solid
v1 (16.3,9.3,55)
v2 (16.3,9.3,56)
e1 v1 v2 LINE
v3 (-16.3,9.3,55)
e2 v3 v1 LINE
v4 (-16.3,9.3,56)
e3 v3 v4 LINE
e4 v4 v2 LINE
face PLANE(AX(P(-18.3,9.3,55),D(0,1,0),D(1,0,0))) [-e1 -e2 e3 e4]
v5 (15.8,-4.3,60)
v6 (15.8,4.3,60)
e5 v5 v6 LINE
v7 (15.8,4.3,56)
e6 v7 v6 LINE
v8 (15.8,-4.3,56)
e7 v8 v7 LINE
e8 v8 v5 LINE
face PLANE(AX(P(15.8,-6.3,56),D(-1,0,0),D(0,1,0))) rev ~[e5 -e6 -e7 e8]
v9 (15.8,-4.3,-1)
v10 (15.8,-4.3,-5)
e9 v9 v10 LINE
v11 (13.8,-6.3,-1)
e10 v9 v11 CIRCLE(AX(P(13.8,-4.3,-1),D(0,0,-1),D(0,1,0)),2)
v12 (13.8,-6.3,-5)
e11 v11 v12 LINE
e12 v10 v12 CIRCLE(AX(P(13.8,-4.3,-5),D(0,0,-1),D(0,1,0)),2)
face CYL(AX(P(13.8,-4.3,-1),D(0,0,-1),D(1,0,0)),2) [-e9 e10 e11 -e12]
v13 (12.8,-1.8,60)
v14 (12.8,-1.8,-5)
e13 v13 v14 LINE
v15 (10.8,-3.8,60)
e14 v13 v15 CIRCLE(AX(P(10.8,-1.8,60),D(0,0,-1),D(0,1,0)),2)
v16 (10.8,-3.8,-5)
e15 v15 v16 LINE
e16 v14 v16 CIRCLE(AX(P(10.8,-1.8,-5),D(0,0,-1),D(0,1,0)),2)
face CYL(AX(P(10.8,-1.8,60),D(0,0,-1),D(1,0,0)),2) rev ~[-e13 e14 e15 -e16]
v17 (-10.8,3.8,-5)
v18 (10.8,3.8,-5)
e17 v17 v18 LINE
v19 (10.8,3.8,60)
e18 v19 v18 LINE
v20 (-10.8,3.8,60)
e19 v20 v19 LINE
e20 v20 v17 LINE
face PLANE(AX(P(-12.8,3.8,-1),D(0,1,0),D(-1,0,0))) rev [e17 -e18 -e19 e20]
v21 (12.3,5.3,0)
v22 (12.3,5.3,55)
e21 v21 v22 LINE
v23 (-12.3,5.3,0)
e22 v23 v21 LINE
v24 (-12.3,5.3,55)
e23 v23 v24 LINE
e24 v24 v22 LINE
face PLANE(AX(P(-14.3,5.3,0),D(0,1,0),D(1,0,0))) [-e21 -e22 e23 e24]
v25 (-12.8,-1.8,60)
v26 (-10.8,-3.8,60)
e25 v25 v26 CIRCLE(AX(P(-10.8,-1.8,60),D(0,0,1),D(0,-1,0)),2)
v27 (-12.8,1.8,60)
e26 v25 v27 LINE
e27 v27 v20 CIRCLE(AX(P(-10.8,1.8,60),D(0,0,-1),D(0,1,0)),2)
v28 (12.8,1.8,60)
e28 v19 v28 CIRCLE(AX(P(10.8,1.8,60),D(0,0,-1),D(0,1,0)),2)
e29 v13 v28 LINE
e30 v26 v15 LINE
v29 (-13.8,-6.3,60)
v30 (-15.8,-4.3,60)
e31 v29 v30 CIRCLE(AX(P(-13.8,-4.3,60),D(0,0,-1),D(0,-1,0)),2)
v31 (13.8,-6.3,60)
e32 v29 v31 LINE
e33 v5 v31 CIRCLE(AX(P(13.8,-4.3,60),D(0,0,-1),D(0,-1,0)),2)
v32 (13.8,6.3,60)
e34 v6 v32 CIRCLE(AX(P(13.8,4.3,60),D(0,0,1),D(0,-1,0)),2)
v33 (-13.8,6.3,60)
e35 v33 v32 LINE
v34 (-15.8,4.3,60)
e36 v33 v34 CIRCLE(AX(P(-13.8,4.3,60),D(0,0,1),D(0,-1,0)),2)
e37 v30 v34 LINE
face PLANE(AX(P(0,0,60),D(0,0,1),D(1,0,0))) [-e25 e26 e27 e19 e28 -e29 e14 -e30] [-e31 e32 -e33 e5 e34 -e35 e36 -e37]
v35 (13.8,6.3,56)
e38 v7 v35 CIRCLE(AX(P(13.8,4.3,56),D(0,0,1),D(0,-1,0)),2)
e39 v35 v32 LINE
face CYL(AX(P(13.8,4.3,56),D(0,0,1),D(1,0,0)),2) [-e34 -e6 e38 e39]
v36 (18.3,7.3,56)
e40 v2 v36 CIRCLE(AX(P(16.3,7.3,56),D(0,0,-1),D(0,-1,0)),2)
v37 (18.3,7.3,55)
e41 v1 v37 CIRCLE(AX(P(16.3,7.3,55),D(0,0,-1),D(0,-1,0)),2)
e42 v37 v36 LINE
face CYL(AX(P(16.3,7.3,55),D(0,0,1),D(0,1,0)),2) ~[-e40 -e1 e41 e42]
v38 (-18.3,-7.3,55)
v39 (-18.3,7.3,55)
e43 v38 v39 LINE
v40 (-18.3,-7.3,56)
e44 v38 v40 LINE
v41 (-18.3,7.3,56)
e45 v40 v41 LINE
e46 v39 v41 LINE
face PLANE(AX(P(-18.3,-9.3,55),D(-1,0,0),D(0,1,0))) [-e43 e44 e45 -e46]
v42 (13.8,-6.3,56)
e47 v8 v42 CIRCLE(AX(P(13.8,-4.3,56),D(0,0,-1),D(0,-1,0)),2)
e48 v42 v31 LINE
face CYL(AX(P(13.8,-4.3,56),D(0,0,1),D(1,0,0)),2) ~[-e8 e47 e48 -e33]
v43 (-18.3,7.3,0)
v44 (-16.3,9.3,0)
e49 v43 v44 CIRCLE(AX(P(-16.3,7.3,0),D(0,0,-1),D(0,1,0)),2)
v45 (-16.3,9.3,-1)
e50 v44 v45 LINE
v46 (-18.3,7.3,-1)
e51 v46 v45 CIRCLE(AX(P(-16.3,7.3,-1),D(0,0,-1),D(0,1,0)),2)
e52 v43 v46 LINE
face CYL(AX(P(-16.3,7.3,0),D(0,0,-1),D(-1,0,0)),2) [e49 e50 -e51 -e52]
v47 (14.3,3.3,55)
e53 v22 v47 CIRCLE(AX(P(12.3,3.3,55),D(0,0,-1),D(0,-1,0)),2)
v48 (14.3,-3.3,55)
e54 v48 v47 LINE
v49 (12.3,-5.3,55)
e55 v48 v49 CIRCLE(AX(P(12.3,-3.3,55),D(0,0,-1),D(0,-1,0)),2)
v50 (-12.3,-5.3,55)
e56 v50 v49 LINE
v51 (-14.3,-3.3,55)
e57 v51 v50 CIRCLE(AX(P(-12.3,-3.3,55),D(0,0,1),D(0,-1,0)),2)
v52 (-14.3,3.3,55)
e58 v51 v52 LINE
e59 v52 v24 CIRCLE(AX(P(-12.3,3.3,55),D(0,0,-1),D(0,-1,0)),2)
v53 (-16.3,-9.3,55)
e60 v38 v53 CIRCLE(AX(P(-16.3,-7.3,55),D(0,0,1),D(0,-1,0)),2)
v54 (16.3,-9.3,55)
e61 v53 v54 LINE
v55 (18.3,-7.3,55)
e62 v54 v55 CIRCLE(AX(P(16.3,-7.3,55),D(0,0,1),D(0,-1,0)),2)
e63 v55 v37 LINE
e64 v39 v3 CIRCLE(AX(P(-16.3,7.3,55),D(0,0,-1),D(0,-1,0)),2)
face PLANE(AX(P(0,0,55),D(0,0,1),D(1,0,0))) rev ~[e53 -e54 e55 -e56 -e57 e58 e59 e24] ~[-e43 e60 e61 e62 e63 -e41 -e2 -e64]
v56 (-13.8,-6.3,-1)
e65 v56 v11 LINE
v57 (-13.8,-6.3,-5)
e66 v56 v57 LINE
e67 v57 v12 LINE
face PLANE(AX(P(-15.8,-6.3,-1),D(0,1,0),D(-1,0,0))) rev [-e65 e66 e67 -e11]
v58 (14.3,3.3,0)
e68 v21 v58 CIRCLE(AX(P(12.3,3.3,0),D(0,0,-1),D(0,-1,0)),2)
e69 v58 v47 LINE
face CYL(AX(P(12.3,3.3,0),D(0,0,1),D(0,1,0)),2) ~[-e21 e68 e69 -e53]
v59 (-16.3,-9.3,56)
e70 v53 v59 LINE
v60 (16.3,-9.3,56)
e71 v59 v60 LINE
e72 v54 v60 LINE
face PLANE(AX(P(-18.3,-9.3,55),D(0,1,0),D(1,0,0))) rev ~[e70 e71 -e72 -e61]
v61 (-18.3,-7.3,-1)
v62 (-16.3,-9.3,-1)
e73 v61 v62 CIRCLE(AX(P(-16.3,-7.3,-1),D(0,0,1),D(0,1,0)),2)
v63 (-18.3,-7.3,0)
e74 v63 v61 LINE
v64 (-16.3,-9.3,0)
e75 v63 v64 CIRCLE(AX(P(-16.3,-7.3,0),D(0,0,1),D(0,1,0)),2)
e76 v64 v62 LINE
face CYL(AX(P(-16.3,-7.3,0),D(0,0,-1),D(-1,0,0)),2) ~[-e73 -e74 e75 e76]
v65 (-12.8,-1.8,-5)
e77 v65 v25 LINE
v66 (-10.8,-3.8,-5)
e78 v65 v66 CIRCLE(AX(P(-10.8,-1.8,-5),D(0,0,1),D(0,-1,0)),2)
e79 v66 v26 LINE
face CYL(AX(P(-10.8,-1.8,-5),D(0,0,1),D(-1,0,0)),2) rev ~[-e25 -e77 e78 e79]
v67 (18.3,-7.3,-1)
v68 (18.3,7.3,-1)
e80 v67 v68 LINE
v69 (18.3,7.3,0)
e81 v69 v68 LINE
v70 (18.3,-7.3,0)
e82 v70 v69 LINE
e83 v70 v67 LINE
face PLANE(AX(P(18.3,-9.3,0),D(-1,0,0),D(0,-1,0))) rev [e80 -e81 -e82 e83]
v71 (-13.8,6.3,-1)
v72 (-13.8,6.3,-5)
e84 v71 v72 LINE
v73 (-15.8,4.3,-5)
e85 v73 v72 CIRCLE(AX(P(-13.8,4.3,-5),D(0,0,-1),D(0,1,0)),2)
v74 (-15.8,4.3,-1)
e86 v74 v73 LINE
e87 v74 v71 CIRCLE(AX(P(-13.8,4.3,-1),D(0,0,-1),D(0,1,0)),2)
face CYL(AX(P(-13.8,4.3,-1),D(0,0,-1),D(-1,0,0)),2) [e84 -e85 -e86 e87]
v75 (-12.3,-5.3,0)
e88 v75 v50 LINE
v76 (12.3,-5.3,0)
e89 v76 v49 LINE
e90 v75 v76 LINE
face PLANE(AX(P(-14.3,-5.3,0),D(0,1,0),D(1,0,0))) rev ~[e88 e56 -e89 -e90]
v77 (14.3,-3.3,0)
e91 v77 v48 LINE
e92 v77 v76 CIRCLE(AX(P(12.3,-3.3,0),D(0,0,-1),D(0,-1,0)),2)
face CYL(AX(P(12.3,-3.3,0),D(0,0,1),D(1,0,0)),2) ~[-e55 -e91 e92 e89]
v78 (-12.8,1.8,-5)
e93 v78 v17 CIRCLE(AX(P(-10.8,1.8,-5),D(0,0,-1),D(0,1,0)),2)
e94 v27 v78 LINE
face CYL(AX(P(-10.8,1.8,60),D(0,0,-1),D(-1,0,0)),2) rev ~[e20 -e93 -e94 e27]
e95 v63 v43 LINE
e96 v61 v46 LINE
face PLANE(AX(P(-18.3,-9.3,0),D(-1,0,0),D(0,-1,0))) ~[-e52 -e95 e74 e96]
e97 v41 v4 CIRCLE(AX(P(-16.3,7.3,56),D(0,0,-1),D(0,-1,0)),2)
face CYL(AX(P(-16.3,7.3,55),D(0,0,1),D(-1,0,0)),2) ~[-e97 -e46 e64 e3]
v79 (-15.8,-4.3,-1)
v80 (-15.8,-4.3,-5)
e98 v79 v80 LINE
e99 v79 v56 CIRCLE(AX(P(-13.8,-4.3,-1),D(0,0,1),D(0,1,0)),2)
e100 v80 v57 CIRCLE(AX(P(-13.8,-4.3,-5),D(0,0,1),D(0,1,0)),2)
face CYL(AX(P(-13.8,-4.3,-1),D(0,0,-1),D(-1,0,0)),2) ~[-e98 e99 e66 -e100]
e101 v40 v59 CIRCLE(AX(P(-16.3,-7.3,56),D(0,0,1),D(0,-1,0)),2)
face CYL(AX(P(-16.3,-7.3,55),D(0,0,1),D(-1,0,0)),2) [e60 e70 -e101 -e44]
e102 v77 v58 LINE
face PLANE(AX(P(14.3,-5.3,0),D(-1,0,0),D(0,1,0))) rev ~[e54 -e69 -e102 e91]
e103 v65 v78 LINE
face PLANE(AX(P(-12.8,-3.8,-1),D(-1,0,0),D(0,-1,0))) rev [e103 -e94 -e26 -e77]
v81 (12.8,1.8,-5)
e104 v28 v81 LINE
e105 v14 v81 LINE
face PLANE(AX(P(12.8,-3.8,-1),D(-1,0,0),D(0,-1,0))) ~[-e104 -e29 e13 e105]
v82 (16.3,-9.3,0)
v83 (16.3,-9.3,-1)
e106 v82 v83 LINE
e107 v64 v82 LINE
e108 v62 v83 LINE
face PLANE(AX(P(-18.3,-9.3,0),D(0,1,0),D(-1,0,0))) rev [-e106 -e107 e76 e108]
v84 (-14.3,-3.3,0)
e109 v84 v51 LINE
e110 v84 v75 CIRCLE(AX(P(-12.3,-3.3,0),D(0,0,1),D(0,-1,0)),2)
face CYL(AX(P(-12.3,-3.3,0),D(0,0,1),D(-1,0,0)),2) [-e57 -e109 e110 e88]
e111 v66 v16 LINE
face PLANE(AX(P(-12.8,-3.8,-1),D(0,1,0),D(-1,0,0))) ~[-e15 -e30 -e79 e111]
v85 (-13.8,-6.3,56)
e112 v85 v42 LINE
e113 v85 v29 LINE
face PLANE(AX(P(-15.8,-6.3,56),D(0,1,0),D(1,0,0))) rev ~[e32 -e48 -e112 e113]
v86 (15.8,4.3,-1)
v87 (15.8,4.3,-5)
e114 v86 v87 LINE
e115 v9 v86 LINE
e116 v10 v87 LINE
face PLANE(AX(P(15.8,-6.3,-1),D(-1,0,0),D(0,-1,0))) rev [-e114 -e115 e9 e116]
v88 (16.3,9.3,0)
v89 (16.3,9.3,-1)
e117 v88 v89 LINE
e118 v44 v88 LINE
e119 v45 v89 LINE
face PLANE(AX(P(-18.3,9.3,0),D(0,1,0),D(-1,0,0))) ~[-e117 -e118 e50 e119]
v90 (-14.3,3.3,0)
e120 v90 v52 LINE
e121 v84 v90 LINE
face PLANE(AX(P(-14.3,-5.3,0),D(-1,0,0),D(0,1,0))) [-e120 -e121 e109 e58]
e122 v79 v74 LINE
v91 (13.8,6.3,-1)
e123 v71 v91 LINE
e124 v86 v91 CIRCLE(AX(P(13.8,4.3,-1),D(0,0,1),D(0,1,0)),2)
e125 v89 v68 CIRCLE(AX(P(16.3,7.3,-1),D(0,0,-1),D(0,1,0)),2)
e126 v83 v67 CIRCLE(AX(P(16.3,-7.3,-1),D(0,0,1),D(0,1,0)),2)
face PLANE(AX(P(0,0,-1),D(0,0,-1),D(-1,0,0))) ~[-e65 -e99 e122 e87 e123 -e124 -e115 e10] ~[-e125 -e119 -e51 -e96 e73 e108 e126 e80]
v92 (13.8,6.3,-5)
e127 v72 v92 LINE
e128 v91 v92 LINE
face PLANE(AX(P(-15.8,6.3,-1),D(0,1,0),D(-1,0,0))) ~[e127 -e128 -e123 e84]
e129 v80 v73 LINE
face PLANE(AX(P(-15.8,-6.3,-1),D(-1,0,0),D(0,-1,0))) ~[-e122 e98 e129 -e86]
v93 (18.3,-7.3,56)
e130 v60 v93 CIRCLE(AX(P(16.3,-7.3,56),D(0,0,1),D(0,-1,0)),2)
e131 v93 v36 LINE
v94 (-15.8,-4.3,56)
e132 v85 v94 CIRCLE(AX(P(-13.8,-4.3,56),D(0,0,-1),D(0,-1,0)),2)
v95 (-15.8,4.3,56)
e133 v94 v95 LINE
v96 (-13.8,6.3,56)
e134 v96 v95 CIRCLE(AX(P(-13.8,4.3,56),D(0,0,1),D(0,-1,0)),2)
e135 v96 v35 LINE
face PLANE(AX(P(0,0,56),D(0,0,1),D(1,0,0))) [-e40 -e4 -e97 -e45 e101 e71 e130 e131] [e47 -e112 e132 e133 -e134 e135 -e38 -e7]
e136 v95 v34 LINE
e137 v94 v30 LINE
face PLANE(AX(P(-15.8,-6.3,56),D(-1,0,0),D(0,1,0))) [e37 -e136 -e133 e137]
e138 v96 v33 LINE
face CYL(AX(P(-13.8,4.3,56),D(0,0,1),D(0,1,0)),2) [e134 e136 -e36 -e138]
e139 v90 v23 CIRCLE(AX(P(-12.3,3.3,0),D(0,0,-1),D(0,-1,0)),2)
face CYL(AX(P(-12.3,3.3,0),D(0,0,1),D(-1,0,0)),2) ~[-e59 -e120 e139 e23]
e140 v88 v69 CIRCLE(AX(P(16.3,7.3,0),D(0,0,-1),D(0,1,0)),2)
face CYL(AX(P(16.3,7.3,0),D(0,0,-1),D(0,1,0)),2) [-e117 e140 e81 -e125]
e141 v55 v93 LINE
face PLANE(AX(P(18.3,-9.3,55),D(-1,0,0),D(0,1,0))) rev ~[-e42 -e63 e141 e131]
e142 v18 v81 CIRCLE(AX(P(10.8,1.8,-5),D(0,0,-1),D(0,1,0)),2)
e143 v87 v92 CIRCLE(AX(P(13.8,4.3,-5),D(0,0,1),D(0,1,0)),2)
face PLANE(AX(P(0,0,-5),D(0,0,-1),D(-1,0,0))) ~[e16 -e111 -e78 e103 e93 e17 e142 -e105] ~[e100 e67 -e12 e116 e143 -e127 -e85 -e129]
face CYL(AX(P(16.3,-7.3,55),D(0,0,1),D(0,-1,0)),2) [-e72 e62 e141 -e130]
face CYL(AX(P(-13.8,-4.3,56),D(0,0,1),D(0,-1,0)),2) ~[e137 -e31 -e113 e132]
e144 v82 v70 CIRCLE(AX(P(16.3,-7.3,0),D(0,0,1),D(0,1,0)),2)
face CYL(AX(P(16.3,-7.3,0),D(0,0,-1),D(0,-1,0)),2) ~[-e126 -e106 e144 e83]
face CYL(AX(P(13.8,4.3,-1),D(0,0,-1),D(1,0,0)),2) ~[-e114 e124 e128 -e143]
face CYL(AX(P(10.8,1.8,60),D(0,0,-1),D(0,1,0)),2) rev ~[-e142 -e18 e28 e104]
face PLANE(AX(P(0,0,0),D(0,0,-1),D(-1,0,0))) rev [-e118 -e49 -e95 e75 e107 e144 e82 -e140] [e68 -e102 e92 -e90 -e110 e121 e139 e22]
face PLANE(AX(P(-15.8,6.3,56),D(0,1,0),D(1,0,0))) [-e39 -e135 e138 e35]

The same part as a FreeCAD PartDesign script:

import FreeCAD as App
import Part
import Sketcher
from FreeCAD import Vector
Q = App.Units.Quantity


def edges_at(feature, points):
    """Names of the edges that pass closest to the given points."""
    edges = feature.Shape.Edges
    near = lambda p: min(range(len(edges)), key=lambda i: edges[i].distToShape(Part.Vertex(*p))[0])
    return sorted({f"Edge{near(p) + 1}" for p in points})

doc = App.newDocument("Part")
body = doc.addObject("PartDesign::Body", "Body")

sketch1 = doc.addObject("Sketcher::SketchObject", "Sketch")
body.addObject(sketch1)
sketch1.AttachmentSupport = (doc.XY_Plane, [""])
sketch1.MapMode = "FlatFace"
sketch1.addGeometry([
    Part.LineSegment(Vector(-14, 5, 0), Vector(-14, -5, 0)),
    Part.LineSegment(Vector(-14, -5, 0), Vector(14, -5, 0)),
    Part.LineSegment(Vector(14, -5, 0), Vector(14, 5, 0)),
    Part.LineSegment(Vector(14, 5, 0), Vector(-14, 5, 0)),
    Part.LineSegment(Vector(13, -4, 0), Vector(-13, -4, 0)),
    Part.LineSegment(Vector(-13, -4, 0), Vector(-13, 4, 0)),
    Part.LineSegment(Vector(-13, 4, 0), Vector(13, 4, 0)),
    Part.LineSegment(Vector(13, 4, 0), Vector(13, -4, 0)),
], False)
sketch1.addConstraint([
    Sketcher.Constraint("Coincident", 0, 2, 1, 1),
    Sketcher.Constraint("Coincident", 1, 2, 2, 1),
    Sketcher.Constraint("Coincident", 2, 2, 3, 1),
    Sketcher.Constraint("Coincident", 3, 2, 0, 1),
    Sketcher.Constraint("Coincident", 4, 2, 5, 1),
    Sketcher.Constraint("Coincident", 5, 2, 6, 1),
    Sketcher.Constraint("Coincident", 6, 2, 7, 1),
    Sketcher.Constraint("Coincident", 7, 2, 4, 1),
    Sketcher.Constraint("Vertical", 0),
    Sketcher.Constraint("Horizontal", 1),
    Sketcher.Constraint("Vertical", 2),
    Sketcher.Constraint("Horizontal", 3),
    Sketcher.Constraint("Horizontal", 4),
    Sketcher.Constraint("Vertical", 5),
    Sketcher.Constraint("Horizontal", 6),
    Sketcher.Constraint("Vertical", 7),
    Sketcher.Constraint("Symmetric", 0, 2, 2, 2, -1, 1),
    Sketcher.Constraint("Symmetric", 4, 2, 6, 2, -1, 1),
    Sketcher.Constraint("DistanceX", 1, 1, 1, 2, Q("28.6 mm")),
    Sketcher.Constraint("DistanceX", 4, 2, 4, 1, Q("25.6 mm")),
    Sketcher.Constraint("DistanceY", 0, 2, 0, 1, Q("10.6 mm")),
    Sketcher.Constraint("DistanceY", 5, 1, 5, 2, Q("7.6 mm")),
])
pad1 = doc.addObject("PartDesign::Pad", "Pad")
body.addObject(pad1)
pad1.Profile = sketch1
pad1.Length = 55

sketch2 = doc.addObject("Sketcher::SketchObject", "Sketch001")
body.addObject(sketch2)
sketch2.AttachmentSupport = (doc.XY_Plane, [""])
sketch2.MapMode = "FlatFace"
sketch2.AttachmentOffset = App.Placement(Vector(0, 0, 55), App.Rotation())
sketch2.addGeometry([
    Part.LineSegment(Vector(-18, 9, 0), Vector(-18, -9, 0)),
    Part.LineSegment(Vector(-18, -9, 0), Vector(18, -9, 0)),
    Part.LineSegment(Vector(18, -9, 0), Vector(18, 9, 0)),
    Part.LineSegment(Vector(18, 9, 0), Vector(-18, 9, 0)),
    Part.LineSegment(Vector(13, -4, 0), Vector(-13, -4, 0)),
    Part.LineSegment(Vector(-13, -4, 0), Vector(-13, 4, 0)),
    Part.LineSegment(Vector(-13, 4, 0), Vector(13, 4, 0)),
    Part.LineSegment(Vector(13, 4, 0), Vector(13, -4, 0)),
], False)
sketch2.addConstraint([
    Sketcher.Constraint("Coincident", 0, 2, 1, 1),
    Sketcher.Constraint("Coincident", 1, 2, 2, 1),
    Sketcher.Constraint("Coincident", 2, 2, 3, 1),
    Sketcher.Constraint("Coincident", 3, 2, 0, 1),
    Sketcher.Constraint("Coincident", 4, 2, 5, 1),
    Sketcher.Constraint("Coincident", 5, 2, 6, 1),
    Sketcher.Constraint("Coincident", 6, 2, 7, 1),
    Sketcher.Constraint("Coincident", 7, 2, 4, 1),
    Sketcher.Constraint("Vertical", 0),
    Sketcher.Constraint("Horizontal", 1),
    Sketcher.Constraint("Vertical", 2),
    Sketcher.Constraint("Horizontal", 3),
    Sketcher.Constraint("Horizontal", 4),
    Sketcher.Constraint("Vertical", 5),
    Sketcher.Constraint("Horizontal", 6),
    Sketcher.Constraint("Vertical", 7),
    Sketcher.Constraint("Symmetric", 0, 2, 2, 2, -1, 1),
    Sketcher.Constraint("Symmetric", 4, 2, 6, 2, -1, 1),
    Sketcher.Constraint("DistanceX", 1, 1, 1, 2, Q("36.6 mm")),
    Sketcher.Constraint("DistanceX", 4, 2, 4, 1, Q("25.6 mm")),
    Sketcher.Constraint("DistanceY", 0, 2, 0, 1, Q("18.6 mm")),
    Sketcher.Constraint("DistanceY", 5, 1, 5, 2, Q("7.6 mm")),
])
pad2 = doc.addObject("PartDesign::Pad", "Pad001")
body.addObject(pad2)
pad2.Profile = sketch2
pad2.Length = 1

sketch3 = doc.addObject("Sketcher::SketchObject", "Sketch002")
body.addObject(sketch3)
sketch3.AttachmentSupport = (doc.XY_Plane, [""])
sketch3.MapMode = "FlatFace"
sketch3.AttachmentOffset = App.Placement(Vector(0, 0, 56), App.Rotation())
sketch3.addGeometry([
    Part.LineSegment(Vector(-16, 6, 0), Vector(-16, -6, 0)),
    Part.LineSegment(Vector(-16, -6, 0), Vector(16, -6, 0)),
    Part.LineSegment(Vector(16, -6, 0), Vector(16, 6, 0)),
    Part.LineSegment(Vector(16, 6, 0), Vector(-16, 6, 0)),
    Part.LineSegment(Vector(13, -4, 0), Vector(-13, -4, 0)),
    Part.LineSegment(Vector(-13, -4, 0), Vector(-13, 4, 0)),
    Part.LineSegment(Vector(-13, 4, 0), Vector(13, 4, 0)),
    Part.LineSegment(Vector(13, 4, 0), Vector(13, -4, 0)),
], False)
sketch3.addConstraint([
    Sketcher.Constraint("Coincident", 0, 2, 1, 1),
    Sketcher.Constraint("Coincident", 1, 2, 2, 1),
    Sketcher.Constraint("Coincident", 2, 2, 3, 1),
    Sketcher.Constraint("Coincident", 3, 2, 0, 1),
    Sketcher.Constraint("Coincident", 4, 2, 5, 1),
    Sketcher.Constraint("Coincident", 5, 2, 6, 1),
    Sketcher.Constraint("Coincident", 6, 2, 7, 1),
    Sketcher.Constraint("Coincident", 7, 2, 4, 1),
    Sketcher.Constraint("Vertical", 0),
    Sketcher.Constraint("Horizontal", 1),
    Sketcher.Constraint("Vertical", 2),
    Sketcher.Constraint("Horizontal", 3),
    Sketcher.Constraint("Horizontal", 4),
    Sketcher.Constraint("Vertical", 5),
    Sketcher.Constraint("Horizontal", 6),
    Sketcher.Constraint("Vertical", 7),
    Sketcher.Constraint("Symmetric", 0, 2, 2, 2, -1, 1),
    Sketcher.Constraint("Symmetric", 4, 2, 6, 2, -1, 1),
    Sketcher.Constraint("DistanceX", 1, 1, 1, 2, Q("31.6 mm")),
    Sketcher.Constraint("DistanceX", 4, 2, 4, 1, Q("25.6 mm")),
    Sketcher.Constraint("DistanceY", 0, 2, 0, 1, Q("12.6 mm")),
    Sketcher.Constraint("DistanceY", 5, 1, 5, 2, Q("7.6 mm")),
])
pad3 = doc.addObject("PartDesign::Pad", "Pad002")
body.addObject(pad3)
pad3.Profile = sketch3
pad3.Length = 4
doc.recompute()

datumplane = doc.addObject("PartDesign::Plane", "DatumPlane")
body.addObject(datumplane)
datumplane.AttachmentSupport = (doc.XY_Plane, [""])
datumplane.MapMode = "FlatFace"
datumplane.AttachmentOffset = App.Placement(Vector(0, 0, 27.5), App.Rotation())
mirrored = doc.addObject("PartDesign::Mirrored", "Mirrored")
body.addObject(mirrored)
mirrored.Originals = [pad2, pad3]
mirrored.MirrorPlane = (datumplane, [""])
body.Tip = mirrored
doc.recompute()

fillet = doc.addObject("PartDesign::Fillet", "Fillet")
body.addObject(fillet)
fillet.Base = (mirrored, edges_at(mirrored, [
    (12.8, -3.8, 27.5),
    (12.8, 3.8, 27.5),
    (-12.8, 3.8, 27.5),
    (-12.8, -3.8, 27.5),
    (15.8, -6.3, 58),
    (15.8, 6.3, 58),
    (-15.8, 6.3, 58),
    (-15.8, -6.3, 58),
    (14.3, -5.3, 27.5),
    (-14.3, -5.3, 27.5),
    (-14.3, 5.3, 27.5),
    (14.3, 5.3, 27.5),
    (15.8, 6.3, -3),
    (15.8, -6.3, -3),
    (-15.8, -6.3, -3),
    (-15.8, 6.3, -3),
]))
fillet.Radius = 2
doc.recompute()

fillet2 = doc.addObject("PartDesign::Fillet", "Fillet001")
body.addObject(fillet2)
fillet2.Base = (fillet, edges_at(fillet, [
    (18.3, -9.3, 55.5),
    (18.3, 9.3, 55.5),
    (-18.3, 9.3, 55.5),
    (-18.3, -9.3, 55.5),
    (18.3, 9.3, -0.5),
    (18.3, -9.3, -0.5),
    (-18.3, -9.3, -0.5),
    (-18.3, 9.3, -0.5),
]))
fillet2.Radius = 2

doc.recompute()
